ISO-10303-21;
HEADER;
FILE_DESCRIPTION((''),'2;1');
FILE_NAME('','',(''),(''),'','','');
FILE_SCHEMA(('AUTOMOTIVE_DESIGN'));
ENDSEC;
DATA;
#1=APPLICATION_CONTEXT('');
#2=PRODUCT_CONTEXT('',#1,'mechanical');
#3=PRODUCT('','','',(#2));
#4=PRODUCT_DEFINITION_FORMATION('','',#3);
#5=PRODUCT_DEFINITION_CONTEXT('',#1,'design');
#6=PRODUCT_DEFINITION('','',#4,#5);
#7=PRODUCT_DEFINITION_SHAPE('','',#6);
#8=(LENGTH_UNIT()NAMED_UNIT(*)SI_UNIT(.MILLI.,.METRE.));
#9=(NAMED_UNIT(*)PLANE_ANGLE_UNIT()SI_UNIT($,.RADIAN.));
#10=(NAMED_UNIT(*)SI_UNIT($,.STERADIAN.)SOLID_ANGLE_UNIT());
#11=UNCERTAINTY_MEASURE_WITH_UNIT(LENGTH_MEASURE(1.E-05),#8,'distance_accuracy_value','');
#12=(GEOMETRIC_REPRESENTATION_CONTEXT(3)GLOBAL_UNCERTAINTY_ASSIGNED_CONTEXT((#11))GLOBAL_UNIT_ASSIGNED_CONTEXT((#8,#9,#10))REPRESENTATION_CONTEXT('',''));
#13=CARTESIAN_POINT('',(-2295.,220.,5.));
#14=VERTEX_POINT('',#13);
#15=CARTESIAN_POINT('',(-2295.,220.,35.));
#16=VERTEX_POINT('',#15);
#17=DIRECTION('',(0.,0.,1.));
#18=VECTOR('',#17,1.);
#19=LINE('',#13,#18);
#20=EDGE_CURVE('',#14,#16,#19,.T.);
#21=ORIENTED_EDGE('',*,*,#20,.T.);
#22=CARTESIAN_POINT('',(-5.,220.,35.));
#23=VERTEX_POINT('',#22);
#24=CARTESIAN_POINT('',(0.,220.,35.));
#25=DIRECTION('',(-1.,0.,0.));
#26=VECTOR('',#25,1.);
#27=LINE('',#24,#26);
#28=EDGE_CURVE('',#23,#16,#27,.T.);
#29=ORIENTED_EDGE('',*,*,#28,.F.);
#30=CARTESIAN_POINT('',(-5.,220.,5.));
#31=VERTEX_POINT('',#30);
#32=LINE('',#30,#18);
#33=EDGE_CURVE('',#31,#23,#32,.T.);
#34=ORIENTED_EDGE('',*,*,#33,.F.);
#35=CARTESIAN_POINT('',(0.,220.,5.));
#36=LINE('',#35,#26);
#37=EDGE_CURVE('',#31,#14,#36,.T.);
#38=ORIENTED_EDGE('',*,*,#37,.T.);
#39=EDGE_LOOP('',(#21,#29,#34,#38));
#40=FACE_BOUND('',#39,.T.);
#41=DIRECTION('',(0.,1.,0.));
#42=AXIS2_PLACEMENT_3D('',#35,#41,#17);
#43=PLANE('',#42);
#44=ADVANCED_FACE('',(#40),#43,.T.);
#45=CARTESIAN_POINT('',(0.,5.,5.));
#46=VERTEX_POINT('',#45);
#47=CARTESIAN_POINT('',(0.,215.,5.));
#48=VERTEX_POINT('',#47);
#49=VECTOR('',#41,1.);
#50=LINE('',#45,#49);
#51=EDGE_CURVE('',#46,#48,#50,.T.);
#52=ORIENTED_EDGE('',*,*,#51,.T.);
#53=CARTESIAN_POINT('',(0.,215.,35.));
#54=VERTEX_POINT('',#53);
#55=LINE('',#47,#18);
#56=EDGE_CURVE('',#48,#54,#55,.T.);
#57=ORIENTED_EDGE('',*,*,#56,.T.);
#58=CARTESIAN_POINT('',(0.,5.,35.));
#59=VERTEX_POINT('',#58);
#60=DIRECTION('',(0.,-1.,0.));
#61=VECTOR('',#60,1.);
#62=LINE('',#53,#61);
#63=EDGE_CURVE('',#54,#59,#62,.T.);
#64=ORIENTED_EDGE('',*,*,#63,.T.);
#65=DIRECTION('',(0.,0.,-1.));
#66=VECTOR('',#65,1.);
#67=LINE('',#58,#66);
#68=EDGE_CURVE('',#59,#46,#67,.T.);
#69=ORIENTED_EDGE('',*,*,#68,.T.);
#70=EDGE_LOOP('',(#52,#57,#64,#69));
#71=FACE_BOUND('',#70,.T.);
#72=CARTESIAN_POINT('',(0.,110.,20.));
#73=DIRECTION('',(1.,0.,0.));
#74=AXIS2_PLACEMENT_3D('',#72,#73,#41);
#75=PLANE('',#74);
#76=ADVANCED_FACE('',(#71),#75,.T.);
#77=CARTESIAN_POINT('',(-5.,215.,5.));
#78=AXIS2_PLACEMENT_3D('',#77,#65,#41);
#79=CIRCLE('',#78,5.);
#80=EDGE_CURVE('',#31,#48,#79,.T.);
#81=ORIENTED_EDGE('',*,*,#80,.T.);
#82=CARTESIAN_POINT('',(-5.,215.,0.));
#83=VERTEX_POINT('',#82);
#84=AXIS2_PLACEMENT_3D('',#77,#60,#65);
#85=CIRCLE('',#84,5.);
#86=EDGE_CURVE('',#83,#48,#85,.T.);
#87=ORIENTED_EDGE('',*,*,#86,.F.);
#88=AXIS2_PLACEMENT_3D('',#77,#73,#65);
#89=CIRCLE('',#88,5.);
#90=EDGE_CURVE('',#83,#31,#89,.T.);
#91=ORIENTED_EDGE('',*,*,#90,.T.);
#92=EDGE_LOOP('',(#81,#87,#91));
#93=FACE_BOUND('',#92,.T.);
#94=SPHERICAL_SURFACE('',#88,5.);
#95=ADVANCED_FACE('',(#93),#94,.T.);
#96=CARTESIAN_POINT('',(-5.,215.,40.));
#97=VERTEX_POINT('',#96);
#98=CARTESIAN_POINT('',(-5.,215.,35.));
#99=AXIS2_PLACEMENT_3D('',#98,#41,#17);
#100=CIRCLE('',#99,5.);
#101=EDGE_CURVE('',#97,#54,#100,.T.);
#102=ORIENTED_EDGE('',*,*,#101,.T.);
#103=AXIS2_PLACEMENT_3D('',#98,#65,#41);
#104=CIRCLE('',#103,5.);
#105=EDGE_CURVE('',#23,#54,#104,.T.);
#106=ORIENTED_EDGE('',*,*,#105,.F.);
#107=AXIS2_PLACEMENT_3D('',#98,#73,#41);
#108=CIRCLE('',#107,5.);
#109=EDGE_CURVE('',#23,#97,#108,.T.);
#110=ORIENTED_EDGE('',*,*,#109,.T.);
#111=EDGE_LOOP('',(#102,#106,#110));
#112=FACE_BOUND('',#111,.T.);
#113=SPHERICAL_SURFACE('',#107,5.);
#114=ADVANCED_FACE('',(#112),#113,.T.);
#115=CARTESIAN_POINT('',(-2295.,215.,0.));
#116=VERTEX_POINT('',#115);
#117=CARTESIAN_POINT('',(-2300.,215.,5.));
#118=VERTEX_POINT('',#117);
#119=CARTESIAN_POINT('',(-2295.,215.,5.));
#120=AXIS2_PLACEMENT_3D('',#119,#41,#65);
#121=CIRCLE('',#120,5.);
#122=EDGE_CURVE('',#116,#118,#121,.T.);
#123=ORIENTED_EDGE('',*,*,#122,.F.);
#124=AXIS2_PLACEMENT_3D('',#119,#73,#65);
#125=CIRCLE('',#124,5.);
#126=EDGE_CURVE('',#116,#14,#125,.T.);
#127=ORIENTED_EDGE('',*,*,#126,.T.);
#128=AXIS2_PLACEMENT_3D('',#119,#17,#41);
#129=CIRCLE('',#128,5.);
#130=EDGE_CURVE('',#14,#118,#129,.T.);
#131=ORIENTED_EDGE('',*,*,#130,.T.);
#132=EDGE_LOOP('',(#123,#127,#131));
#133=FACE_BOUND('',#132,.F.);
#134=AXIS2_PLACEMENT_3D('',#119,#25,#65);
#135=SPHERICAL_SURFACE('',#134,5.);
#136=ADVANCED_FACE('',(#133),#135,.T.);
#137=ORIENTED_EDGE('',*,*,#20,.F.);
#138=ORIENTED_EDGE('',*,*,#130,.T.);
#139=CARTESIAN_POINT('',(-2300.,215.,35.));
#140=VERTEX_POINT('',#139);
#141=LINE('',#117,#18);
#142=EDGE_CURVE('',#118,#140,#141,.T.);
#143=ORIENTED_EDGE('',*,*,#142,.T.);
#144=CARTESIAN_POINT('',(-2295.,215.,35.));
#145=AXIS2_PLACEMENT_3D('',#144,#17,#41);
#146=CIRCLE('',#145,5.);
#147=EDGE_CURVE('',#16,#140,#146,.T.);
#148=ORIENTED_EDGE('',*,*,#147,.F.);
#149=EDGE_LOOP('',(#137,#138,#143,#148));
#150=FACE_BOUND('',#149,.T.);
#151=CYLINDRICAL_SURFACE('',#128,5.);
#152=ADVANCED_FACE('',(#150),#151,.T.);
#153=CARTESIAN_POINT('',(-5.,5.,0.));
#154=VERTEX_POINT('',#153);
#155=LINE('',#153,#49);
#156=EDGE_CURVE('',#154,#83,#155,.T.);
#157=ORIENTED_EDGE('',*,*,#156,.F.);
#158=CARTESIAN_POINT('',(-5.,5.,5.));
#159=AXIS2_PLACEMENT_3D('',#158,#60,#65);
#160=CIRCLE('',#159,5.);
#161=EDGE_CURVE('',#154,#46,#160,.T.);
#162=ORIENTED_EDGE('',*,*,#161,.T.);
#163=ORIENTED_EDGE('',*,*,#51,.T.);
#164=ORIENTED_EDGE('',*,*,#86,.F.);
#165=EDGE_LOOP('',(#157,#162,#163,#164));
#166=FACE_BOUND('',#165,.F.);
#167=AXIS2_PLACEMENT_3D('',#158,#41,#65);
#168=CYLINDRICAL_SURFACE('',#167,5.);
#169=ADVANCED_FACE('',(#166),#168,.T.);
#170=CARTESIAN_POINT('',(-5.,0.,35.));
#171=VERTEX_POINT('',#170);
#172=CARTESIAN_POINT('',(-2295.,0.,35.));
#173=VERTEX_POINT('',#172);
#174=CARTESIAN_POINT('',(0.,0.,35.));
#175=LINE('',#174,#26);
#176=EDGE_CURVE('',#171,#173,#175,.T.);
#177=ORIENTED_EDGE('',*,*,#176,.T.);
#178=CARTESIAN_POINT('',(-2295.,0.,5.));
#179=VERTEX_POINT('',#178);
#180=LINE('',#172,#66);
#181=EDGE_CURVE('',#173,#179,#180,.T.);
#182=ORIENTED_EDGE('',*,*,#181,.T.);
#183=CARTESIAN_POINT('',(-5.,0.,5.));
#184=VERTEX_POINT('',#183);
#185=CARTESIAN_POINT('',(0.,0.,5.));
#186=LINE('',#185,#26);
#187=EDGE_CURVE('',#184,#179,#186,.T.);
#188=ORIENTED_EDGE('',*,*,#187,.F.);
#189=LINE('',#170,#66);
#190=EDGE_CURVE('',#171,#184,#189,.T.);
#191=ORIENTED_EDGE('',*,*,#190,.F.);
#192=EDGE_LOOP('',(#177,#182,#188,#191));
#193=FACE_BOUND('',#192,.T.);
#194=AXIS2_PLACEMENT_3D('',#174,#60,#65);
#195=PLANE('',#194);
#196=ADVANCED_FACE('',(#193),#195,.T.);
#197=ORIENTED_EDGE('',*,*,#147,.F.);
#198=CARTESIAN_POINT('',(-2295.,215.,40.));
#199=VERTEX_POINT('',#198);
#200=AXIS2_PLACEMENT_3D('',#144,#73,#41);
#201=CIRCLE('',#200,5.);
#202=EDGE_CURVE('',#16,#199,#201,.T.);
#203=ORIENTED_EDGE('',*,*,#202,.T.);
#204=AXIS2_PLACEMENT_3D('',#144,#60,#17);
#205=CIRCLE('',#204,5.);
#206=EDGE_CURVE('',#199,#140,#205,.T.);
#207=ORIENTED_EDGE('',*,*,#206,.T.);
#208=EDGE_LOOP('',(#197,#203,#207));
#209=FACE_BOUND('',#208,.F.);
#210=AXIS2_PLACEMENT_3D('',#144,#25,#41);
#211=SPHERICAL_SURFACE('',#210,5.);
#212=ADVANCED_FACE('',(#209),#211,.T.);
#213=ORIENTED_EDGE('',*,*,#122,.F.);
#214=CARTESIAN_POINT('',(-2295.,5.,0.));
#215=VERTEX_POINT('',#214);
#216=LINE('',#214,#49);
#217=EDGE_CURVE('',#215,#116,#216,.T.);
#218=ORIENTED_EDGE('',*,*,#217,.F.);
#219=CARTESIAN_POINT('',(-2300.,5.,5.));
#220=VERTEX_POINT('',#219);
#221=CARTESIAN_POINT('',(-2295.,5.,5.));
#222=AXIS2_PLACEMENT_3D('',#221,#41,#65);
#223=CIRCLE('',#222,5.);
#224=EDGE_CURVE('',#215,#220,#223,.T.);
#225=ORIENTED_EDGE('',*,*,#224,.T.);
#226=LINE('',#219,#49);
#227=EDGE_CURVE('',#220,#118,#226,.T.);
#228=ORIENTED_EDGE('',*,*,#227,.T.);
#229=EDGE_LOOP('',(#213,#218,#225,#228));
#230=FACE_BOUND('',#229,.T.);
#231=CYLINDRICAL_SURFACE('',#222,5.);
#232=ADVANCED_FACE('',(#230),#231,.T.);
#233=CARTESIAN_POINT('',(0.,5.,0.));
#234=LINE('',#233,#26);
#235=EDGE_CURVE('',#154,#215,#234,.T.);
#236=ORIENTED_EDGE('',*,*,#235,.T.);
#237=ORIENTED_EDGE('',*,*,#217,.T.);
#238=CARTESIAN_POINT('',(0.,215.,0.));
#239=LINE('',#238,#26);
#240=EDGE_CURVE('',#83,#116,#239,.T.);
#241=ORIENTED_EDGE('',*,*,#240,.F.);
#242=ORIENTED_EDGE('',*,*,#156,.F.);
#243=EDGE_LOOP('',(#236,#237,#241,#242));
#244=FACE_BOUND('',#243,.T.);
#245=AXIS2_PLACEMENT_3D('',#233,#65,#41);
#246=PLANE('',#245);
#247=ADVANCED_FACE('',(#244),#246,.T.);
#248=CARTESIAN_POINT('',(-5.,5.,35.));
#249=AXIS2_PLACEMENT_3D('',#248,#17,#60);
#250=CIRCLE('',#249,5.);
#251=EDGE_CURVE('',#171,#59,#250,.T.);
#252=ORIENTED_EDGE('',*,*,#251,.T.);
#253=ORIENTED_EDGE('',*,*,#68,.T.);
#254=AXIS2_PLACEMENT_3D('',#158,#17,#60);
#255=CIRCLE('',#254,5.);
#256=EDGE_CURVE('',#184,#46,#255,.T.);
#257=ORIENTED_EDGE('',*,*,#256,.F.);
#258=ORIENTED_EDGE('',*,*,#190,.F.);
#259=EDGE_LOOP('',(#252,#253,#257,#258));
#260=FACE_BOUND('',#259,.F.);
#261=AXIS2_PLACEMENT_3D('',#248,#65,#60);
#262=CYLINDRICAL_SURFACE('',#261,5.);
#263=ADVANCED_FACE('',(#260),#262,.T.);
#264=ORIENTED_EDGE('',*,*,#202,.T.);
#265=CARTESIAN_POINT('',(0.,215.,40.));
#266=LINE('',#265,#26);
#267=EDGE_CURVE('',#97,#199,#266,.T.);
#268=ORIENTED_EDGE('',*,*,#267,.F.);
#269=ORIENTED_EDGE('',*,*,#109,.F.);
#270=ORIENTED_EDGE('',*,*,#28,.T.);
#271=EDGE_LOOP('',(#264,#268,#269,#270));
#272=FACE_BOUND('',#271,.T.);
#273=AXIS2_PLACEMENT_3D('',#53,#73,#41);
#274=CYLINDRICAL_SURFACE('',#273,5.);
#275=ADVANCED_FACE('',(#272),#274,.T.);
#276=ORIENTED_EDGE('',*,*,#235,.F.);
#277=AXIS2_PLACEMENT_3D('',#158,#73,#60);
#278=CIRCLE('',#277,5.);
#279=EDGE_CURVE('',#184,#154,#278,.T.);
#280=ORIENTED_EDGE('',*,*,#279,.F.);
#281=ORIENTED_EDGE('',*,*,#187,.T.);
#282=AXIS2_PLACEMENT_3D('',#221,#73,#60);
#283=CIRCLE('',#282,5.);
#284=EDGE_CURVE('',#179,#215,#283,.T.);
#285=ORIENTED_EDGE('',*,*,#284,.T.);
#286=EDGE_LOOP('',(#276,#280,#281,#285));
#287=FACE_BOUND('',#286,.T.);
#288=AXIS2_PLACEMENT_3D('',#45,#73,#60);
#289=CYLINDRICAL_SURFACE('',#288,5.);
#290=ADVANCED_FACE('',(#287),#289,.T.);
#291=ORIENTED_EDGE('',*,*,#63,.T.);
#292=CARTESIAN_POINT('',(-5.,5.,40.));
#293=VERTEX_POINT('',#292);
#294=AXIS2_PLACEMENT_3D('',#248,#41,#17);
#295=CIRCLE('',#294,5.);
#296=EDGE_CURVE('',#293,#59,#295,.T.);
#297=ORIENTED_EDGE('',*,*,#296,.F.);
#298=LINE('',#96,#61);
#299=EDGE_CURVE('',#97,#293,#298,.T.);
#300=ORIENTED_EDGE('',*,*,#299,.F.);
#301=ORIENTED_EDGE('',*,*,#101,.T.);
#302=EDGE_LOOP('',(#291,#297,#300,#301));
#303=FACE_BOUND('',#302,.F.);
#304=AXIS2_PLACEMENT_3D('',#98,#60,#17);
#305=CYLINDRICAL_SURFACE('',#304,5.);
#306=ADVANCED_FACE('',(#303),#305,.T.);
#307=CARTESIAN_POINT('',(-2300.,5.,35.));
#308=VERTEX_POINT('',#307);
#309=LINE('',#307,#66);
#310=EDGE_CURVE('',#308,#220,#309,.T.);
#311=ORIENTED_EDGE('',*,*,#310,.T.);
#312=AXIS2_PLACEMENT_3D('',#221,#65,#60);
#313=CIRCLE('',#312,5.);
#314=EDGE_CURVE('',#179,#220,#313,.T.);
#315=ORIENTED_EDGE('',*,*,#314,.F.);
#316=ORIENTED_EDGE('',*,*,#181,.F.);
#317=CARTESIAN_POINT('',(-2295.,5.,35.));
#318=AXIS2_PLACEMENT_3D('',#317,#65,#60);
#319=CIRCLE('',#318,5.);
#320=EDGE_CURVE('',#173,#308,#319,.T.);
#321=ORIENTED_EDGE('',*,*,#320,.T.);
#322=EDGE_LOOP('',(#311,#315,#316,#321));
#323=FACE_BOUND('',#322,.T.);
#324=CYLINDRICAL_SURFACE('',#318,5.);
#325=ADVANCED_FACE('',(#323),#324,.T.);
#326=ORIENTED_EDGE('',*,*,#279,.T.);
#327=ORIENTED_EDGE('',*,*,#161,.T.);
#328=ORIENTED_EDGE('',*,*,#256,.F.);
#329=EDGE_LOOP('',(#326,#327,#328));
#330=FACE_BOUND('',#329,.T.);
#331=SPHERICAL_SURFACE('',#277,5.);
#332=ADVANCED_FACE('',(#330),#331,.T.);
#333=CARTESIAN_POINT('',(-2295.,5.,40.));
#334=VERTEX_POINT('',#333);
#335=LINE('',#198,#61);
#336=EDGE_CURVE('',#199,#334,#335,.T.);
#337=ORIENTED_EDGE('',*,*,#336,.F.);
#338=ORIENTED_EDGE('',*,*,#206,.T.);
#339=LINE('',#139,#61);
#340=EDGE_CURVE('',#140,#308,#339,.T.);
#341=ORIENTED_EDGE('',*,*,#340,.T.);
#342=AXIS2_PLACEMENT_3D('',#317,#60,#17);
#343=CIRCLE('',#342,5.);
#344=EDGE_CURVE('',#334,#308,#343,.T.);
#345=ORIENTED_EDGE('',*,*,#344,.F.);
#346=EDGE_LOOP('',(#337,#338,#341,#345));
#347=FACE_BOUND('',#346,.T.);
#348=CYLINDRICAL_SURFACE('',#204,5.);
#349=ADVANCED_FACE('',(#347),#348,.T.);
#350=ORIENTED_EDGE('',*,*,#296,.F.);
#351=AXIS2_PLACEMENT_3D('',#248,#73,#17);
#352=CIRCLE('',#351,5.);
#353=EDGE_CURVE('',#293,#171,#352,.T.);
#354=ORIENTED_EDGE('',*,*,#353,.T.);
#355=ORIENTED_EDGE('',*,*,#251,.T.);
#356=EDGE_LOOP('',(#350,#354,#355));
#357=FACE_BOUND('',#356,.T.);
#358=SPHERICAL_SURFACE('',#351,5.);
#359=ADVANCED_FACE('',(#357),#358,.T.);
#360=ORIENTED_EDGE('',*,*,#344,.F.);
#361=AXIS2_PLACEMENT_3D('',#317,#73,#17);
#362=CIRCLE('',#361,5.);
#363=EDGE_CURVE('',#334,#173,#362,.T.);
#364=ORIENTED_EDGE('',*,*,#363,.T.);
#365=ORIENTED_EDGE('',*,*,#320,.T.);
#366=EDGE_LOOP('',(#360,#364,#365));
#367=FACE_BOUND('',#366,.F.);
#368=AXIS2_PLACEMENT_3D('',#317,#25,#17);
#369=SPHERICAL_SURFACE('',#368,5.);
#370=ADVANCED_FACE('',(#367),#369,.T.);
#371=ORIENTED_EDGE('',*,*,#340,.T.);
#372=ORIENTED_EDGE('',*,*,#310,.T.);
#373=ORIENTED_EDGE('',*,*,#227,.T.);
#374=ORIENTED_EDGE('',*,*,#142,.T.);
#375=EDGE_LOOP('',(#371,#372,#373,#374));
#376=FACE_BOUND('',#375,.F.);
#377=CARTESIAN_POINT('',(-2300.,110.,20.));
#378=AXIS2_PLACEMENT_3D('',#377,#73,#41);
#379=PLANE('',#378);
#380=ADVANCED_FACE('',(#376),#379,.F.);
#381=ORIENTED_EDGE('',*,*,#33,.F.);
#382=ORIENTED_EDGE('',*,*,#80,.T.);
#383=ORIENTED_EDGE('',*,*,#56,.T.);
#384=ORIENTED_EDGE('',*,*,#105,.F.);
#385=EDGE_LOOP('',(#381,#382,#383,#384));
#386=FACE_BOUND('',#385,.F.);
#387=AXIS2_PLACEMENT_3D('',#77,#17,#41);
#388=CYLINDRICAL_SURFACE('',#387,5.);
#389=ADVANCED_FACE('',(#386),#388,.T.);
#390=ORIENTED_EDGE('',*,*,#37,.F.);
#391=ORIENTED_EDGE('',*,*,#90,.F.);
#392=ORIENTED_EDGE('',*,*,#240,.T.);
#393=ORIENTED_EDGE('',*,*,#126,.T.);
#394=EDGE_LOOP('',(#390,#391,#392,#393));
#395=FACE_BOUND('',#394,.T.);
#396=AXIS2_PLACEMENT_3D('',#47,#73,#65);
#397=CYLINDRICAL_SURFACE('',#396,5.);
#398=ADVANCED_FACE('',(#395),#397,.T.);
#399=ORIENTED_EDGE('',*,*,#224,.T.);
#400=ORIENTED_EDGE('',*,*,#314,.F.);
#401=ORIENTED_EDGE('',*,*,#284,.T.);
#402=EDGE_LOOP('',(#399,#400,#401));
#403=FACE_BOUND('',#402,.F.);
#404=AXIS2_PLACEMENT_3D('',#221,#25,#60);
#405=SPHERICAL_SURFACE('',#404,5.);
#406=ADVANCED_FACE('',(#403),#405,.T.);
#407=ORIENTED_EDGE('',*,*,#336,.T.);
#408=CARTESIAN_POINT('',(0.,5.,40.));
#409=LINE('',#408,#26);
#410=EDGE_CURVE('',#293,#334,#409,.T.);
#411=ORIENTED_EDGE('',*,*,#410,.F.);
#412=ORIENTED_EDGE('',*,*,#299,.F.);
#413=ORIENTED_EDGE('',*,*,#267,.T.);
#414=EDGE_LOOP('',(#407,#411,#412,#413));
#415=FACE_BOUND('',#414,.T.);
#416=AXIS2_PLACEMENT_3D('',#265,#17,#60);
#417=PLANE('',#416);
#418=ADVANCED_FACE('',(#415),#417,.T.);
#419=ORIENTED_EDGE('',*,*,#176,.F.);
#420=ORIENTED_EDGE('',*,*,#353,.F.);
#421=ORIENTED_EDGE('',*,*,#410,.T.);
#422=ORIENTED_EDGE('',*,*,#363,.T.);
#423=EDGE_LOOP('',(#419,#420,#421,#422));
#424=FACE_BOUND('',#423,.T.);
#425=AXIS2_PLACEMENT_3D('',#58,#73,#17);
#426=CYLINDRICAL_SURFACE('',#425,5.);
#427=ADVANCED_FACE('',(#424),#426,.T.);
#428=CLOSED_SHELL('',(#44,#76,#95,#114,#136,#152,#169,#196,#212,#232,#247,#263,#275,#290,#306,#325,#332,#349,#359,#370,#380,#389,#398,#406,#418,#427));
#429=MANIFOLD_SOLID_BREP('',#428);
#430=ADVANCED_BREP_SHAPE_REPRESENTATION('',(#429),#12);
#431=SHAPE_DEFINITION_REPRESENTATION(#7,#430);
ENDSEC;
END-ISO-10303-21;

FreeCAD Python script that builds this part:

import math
import FreeCAD as App
import Part
import Sketcher
from FreeCAD import Vector
Q = App.Units.Quantity


def edges_at(feature, points):
    """Names of the edges that pass closest to the given points."""
    edges = feature.Shape.Edges
    near = lambda p: min(range(len(edges)), key=lambda i: edges[i].distToShape(Part.Vertex(*p))[0])
    return sorted({f"Edge{near(p) + 1}" for p in points})

doc = App.newDocument("Part")
body = doc.addObject("PartDesign::Body", "Body")

# Sketch on YZ plane
sketch1 = doc.addObject("Sketcher::SketchObject", "Sketch")
body.addObject(sketch1)
sketch1.AttachmentSupport = (doc.YZ_Plane, [""])
sketch1.MapMode = "FlatFace"
sketch1.addGeometry([
    Part.ArcOfCircle(Part.Circle(Vector(5, 5, 0), Vector(0, 0, 1), 5), math.radians(180), math.radians(270)),  # 0
    Part.LineSegment(Vector(5, 0, 0), Vector(215, 0, 0)),  # 1
    Part.ArcOfCircle(Part.Circle(Vector(215, 5, 0), Vector(0, 0, 1), 5), math.radians(-90), math.radians(0)),  # 2
    Part.LineSegment(Vector(220, 5, 0), Vector(220, 35, 0)),  # 3
    Part.ArcOfCircle(Part.Circle(Vector(215, 35, 0), Vector(0, 0, 1), 5), math.radians(0), math.radians(90)),  # 4
    Part.LineSegment(Vector(215, 40, 0), Vector(5, 40, 0)),  # 5
    Part.ArcOfCircle(Part.Circle(Vector(5, 35, 0), Vector(0, 0, 1), 5), math.radians(90), math.radians(180)),  # 6
    Part.LineSegment(Vector(0, 35, 0), Vector(0, 5, 0)),  # 7
], False)
sketch1.addConstraint([
    Sketcher.Constraint("Tangent", 0, 2, 1, 1),
    Sketcher.Constraint("Tangent", 1, 2, 2, 1),
    Sketcher.Constraint("Tangent", 2, 2, 3, 1),
    Sketcher.Constraint("Tangent", 3, 2, 4, 1),
    Sketcher.Constraint("Tangent", 4, 2, 5, 1),
    Sketcher.Constraint("Tangent", 5, 2, 6, 1),
    Sketcher.Constraint("Tangent", 6, 2, 7, 1),
    Sketcher.Constraint("Tangent", 7, 2, 0, 1),
    Sketcher.Constraint("Horizontal", 1),
    Sketcher.Constraint("Vertical", 3),
    Sketcher.Constraint("Horizontal", 5),
    Sketcher.Constraint("Vertical", 7),
    Sketcher.Constraint("Equal", 0, 2),
    Sketcher.Constraint("Equal", 2, 4),
    Sketcher.Constraint("Equal", 4, 6),
    Sketcher.Constraint("PointOnObject", 0, 2, -1),
    Sketcher.Constraint("PointOnObject", 6, 2, -2),
    Sketcher.Constraint("Radius", 0, Q("5 mm")),
    Sketcher.Constraint("DistanceX", 1, 1, 1, 2, Q("210 mm")),
    Sketcher.Constraint("DistanceY", 3, 1, 3, 2, Q("30 mm")),
])
pad1 = doc.addObject("PartDesign::Pad", "Pad")
body.addObject(pad1)
pad1.Profile = sketch1
pad1.Length = 2300
pad1.Reversed = True
doc.recompute()

fillet = doc.addObject("PartDesign::Fillet", "Fillet")
body.addObject(fillet)
fillet.Base = (pad1, edges_at(pad1, [(0, 110, 40)]))
fillet.Radius = 5
doc.recompute()

fillet2 = doc.addObject("PartDesign::Fillet", "Fillet001")
body.addObject(fillet2)
fillet2.Base = (fillet, edges_at(fillet, [
    (-2300, 0, 20),
    (-2300, 1.464, 1.464),
    (-2300, 110, 0),
    (-2300, 218.536, 1.464),
    (-2300, 220, 20),
    (-2300, 218.536, 38.536),
    (-2300, 110, 40),
    (-2300, 1.464, 38.536),
]))
fillet2.Radius = 5

doc.recompute()
